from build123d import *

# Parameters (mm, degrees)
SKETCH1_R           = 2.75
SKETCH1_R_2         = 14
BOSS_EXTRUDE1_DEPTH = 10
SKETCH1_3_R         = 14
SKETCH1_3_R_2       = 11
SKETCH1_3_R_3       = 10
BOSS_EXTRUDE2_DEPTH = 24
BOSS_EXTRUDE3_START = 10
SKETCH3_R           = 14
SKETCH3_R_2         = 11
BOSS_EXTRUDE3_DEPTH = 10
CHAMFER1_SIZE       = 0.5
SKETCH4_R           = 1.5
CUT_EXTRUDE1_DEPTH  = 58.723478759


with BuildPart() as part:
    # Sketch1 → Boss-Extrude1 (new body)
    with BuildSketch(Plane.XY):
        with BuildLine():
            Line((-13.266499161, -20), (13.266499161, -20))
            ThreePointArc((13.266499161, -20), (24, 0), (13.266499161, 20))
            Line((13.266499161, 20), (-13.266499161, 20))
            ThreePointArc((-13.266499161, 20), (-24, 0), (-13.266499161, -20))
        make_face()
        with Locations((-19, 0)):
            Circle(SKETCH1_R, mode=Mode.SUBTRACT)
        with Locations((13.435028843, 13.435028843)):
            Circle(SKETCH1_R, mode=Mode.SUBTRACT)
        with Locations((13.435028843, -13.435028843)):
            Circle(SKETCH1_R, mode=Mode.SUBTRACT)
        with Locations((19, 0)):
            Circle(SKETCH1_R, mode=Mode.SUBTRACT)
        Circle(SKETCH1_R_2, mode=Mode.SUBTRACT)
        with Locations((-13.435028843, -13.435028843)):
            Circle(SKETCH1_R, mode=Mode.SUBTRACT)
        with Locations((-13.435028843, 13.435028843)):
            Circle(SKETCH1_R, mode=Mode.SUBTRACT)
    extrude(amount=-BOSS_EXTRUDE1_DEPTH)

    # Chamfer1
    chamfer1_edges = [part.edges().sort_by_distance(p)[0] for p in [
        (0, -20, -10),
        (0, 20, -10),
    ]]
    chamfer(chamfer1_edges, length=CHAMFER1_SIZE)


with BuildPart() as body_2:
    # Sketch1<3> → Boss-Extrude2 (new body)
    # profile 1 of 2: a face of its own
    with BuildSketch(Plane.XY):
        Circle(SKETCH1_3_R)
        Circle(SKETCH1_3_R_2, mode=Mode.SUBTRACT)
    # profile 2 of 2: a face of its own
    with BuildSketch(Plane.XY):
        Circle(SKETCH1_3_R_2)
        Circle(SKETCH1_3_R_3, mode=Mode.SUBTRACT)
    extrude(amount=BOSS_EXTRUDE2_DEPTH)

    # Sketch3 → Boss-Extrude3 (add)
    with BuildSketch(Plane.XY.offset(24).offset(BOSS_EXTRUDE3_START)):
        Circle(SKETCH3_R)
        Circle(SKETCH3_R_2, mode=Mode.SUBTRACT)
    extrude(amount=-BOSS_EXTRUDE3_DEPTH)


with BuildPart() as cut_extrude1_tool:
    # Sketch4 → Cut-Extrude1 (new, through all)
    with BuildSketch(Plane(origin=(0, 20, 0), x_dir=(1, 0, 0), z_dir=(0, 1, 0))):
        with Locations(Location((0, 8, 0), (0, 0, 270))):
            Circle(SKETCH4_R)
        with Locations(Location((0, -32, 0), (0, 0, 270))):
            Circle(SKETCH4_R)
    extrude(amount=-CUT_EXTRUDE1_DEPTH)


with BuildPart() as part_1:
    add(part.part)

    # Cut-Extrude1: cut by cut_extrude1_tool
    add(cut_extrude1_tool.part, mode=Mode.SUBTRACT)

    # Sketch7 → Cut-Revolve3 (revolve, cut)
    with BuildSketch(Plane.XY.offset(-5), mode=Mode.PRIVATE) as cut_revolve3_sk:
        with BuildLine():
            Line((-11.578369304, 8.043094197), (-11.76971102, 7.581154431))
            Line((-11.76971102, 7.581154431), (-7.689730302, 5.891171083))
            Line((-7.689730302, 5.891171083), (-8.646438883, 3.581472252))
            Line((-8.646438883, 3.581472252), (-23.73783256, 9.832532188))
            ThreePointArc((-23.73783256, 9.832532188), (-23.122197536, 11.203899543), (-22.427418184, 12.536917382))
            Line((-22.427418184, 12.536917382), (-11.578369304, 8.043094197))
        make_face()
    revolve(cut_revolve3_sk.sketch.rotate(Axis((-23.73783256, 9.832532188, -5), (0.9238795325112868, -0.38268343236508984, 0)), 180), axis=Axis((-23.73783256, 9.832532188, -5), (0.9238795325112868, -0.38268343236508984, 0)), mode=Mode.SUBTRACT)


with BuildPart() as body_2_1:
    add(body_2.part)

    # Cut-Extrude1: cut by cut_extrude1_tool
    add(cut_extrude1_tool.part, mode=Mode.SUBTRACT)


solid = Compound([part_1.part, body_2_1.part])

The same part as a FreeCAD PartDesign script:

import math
import FreeCAD as App
import Part
import Sketcher
Q = App.Units.Quantity


def edges_at(feature, points):
    """Names of the edges that pass closest to the given points."""
    edges = feature.Shape.Edges
    near = lambda p: min(range(len(edges)), key=lambda i: edges[i].distToShape(Part.Vertex(*p))[0])
    return sorted({f"Edge{near(p) + 1}" for p in points})

doc = App.newDocument("Part")
params = doc.addObject("Spreadsheet::Sheet", "Params")
for row, (alias, value) in enumerate([
    ("sketch1_diameter", "28 mm"),
    ("sketch1_radius", "24 mm"),
    ("sketch1_diameter2", "5.5 mm"),
    ("pad1_length", "10 mm"),
    ("chamfer_size", "0.5 mm"),
    ("sketch2_diameter", "28 mm"),
    ("sketch2_diameter2", "20 mm"),
    ("pad2_length", "24 mm"),
    ("sketch3_diameter", "28 mm"),
    ("sketch3_diameter2", "22 mm"),
    ("pad3_length", "10 mm"),
    ("sketch4_diameter", "3 mm"),
    ("pad4_length", "58.723479 mm"),
    ("sketch5_length", "0.5 mm"),
    ("sketch5_length2", "2.5 mm"),
    ("groove_angle", "360 deg"),
], start=1):
    params.set(f"A{row}", alias)
    params.set(f"B{row}", "=" + value)
    params.setAlias(f"B{row}", alias)

body = doc.addObject("PartDesign::Body", "Body")

sketch1 = body.newObject("Sketcher::SketchObject", "Sketch")
sketch1.AttachmentSupport = (doc.getObject("XY_Plane"), [""])
sketch1.MapMode = "FlatFace"
sketch1.addGeometry([
    Part.LineSegment(App.Vector(-13.3, -20, 0), App.Vector(13.3, -20, 0)),
    Part.ArcOfCircle(Part.Circle(App.Vector(0, 0, 0), App.Vector(0, 0, 1), 24), math.radians(-56), math.radians(56)),
    Part.LineSegment(App.Vector(13.3, 20, 0), App.Vector(-13.3, 20, 0)),
    Part.ArcOfCircle(Part.Circle(App.Vector(0, 0, 0), App.Vector(0, 0, 1), 24), math.radians(124), math.radians(236)),
    Part.Circle(App.Vector(-13.4, -13.4, 0), App.Vector(0, 0, 1), 2.8),
    Part.Circle(App.Vector(13.4, -13.4, 0), App.Vector(0, 0, 1), 2.8),
    Part.Circle(App.Vector(-19, 0, 0), App.Vector(0, 0, 1), 2.8),
    Part.Circle(App.Vector(-13.4, 13.4, 0), App.Vector(0, 0, 1), 2.8),
    Part.Circle(App.Vector(0, 0, 0), App.Vector(0, 0, 1), 14),
    Part.Circle(App.Vector(19, 0, 0), App.Vector(0, 0, 1), 2.8),
    Part.Circle(App.Vector(13.4, 13.4, 0), App.Vector(0, 0, 1), 2.8),
], False)
sketch1.addConstraint([
    Sketcher.Constraint("Coincident", 0, 2, 1, 1),
    Sketcher.Constraint("Coincident", 1, 2, 2, 1),
    Sketcher.Constraint("Coincident", 2, 2, 3, 1),
    Sketcher.Constraint("Coincident", 3, 2, 0, 1),
    Sketcher.Constraint("Horizontal", 0),
    Sketcher.Constraint("Horizontal", 2),
    Sketcher.Constraint("Coincident", 1, 3, -1, 1),
    Sketcher.Constraint("Coincident", 3, 3, -1, 1),
    Sketcher.Constraint("Coincident", 8, 3, -1, 1),
    Sketcher.Constraint("Equal", 1, 3),
    Sketcher.Constraint("Equal", 4, 5),
    Sketcher.Constraint("Equal", 5, 6),
    Sketcher.Constraint("Equal", 6, 7),
    Sketcher.Constraint("Equal", 7, 9),
    Sketcher.Constraint("Equal", 9, 10),
    Sketcher.Constraint("Symmetric", 5, 3, 7, 3, -1, 1),
    Sketcher.Constraint("Symmetric", 6, 3, 9, 3, -1, 1),
    Sketcher.Constraint("Symmetric", 4, 3, 10, 3, -1, 1),
    Sketcher.Constraint("Symmetric", 4, 3, 5, 3, -2),
    Sketcher.Constraint("PointOnObject", 6, 3, -1),
    Sketcher.Constraint("Vertical", 0, 2, 1, 2),
    Sketcher.Constraint("Diameter", 8, 28.0),
    Sketcher.Constraint("Radius", 1, 24.0),
    Sketcher.Constraint("Diameter", 4, 5.5),
    Sketcher.Constraint("DistanceX", 6, 3, -1, 1, 19.0),
    Sketcher.Constraint("DistanceY", 0, 2, -1, 1, 20.0),
    Sketcher.Constraint("DistanceX", 4, 3, -1, 1, 13.435029),
    Sketcher.Constraint("DistanceY", 4, 3, -1, 1, 13.435029),
])
sketch1.setExpression("Constraints[21]", "Params.sketch1_diameter")
sketch1.setExpression("Constraints[22]", "Params.sketch1_radius")
sketch1.setExpression("Constraints[23]", "Params.sketch1_diameter2")
pad1 = body.newObject("PartDesign::Pad", "Pad")
pad1.Profile = sketch1
pad1.setExpression("Length", "Params.pad1_length")
pad1.Reversed = True
doc.recompute()

chamfer = body.newObject("PartDesign::Chamfer", "Chamfer")
chamfer.Base = (pad1, edges_at(pad1, [(0, -20, -10), (0, 20, -10)]))
chamfer.setExpression("Size", "Params.chamfer_size")
body2 = doc.addObject("PartDesign::Body", "Body001")

sketch2 = body2.newObject("Sketcher::SketchObject", "Sketch001")
sketch2.AttachmentSupport = (doc.getObject("XY_Plane001"), [""])
sketch2.MapMode = "FlatFace"
sketch2.addGeometry([
    Part.Circle(App.Vector(0, 0, 0), App.Vector(0, 0, 1), 14),
    Part.Circle(App.Vector(0, 0, 0), App.Vector(0, 0, 1), 10),
], False)
sketch2.addConstraint([
    Sketcher.Constraint("Coincident", 0, 3, -1, 1),
    Sketcher.Constraint("Coincident", 1, 3, -1, 1),
    Sketcher.Constraint("Diameter", 0, 28.0),
    Sketcher.Constraint("Diameter", 1, 20.0),
])
sketch2.setExpression("Constraints[2]", "Params.sketch2_diameter")
sketch2.setExpression("Constraints[3]", "Params.sketch2_diameter2")
pad2 = body2.newObject("PartDesign::Pad", "Pad001")
pad2.Profile = sketch2
pad2.setExpression("Length", "Params.pad2_length")

sketch3 = body2.newObject("Sketcher::SketchObject", "Sketch002")
sketch3.AttachmentSupport = (doc.getObject("XY_Plane001"), [""])
sketch3.MapMode = "FlatFace"
sketch3.AttachmentOffset = App.Placement(App.Vector(0, 0, 34), App.Rotation())
sketch3.addGeometry([
    Part.Circle(App.Vector(0, 0, 0), App.Vector(0, 0, 1), 14),
    Part.Circle(App.Vector(0, 0, 0), App.Vector(0, 0, 1), 11),
], False)
sketch3.addConstraint([
    Sketcher.Constraint("Coincident", 0, 3, -1, 1),
    Sketcher.Constraint("Coincident", 1, 3, -1, 1),
    Sketcher.Constraint("Diameter", 0, 28.0),
    Sketcher.Constraint("Diameter", 1, 22.0),
])
sketch3.setExpression("Constraints[2]", "Params.sketch3_diameter")
sketch3.setExpression("Constraints[3]", "Params.sketch3_diameter2")
pad3 = body2.newObject("PartDesign::Pad", "Pad002")
pad3.Profile = sketch3
pad3.setExpression("Length", "Params.pad3_length")
pad3.Reversed = True
body3 = doc.addObject("PartDesign::Body", "Body002")
body3.AllowCompound = True

sketch4 = body3.newObject("Sketcher::SketchObject", "Sketch003")
sketch4.AttachmentSupport = (doc.getObject("XZ_Plane002"), [""])
sketch4.MapMode = "FlatFace"
sketch4.AttachmentOffset = App.Placement(App.Vector(0, 0, -20), App.Rotation())
sketch4.addGeometry([
    Part.Circle(App.Vector(0, -8, 0), App.Vector(0, 0, 1), 1.5),
    Part.Circle(App.Vector(0, 32, 0), App.Vector(0, 0, 1), 1.5),
], False)
sketch4.addConstraint([
    Sketcher.Constraint("Equal", 0, 1),
    Sketcher.Constraint("PointOnObject", 0, 3, -2),
    Sketcher.Constraint("PointOnObject", 1, 3, -2),
    Sketcher.Constraint("Diameter", 0, 3.0),
    Sketcher.Constraint("DistanceY", 0, 3, -1, 1, 8.0),
    Sketcher.Constraint("DistanceY", -1, 1, 1, 3, 32.0),
])
sketch4.setExpression("Constraints[3]", "Params.sketch4_diameter")
pad4 = body3.newObject("PartDesign::Pad", "Pad003")
pad4.Profile = sketch4
pad4.setExpression("Length", "Params.pad4_length")
doc.recompute()

body4 = doc.addObject("PartDesign::Body", "Body003")
body4.BaseFeature = body3
boolean = body.newObject("PartDesign::Boolean", "Boolean")
boolean.Type = "Cut"
boolean.addObjects([body4])
doc.recompute()

sketch5 = body.newObject("Sketcher::SketchObject", "Sketch004")
sketch5.AttachmentSupport = (doc.getObject("XY_Plane"), [""])
sketch5.MapMode = "FlatFace"
sketch5.AttachmentOffset = App.Placement(App.Vector(0, 0, -5), App.Rotation())
sketch5.addGeometry([
    Part.LineSegment(App.Vector(-11.77, 7.58, 0), App.Vector(-11.58, 8.04, 0)),
    Part.LineSegment(App.Vector(-11.58, 8.04, 0), App.Vector(-22.43, 12.54, 0)),
    Part.ArcOfCircle(Part.Circle(App.Vector(0, 0, 0), App.Vector(0, 0, 1), 25.69), math.radians(150.79), math.radians(157.5)),
    Part.LineSegment(App.Vector(-23.74, 9.83, 0), App.Vector(-8.65, 3.58, 0)),
    Part.LineSegment(App.Vector(-8.65, 3.58, 0), App.Vector(-7.69, 5.89, 0)),
    Part.LineSegment(App.Vector(-7.69, 5.89, 0), App.Vector(-11.77, 7.58, 0)),
], False)
sketch5.addGeometry(Part.LineSegment(App.Vector(-23.74, 9.83, 0), App.Vector(0, 0, 0)), True)
sketch5.addConstraint([
    Sketcher.Constraint("Coincident", 0, 2, 1, 1),
    Sketcher.Constraint("Coincident", 1, 2, 2, 1),
    Sketcher.Constraint("Coincident", 2, 2, 3, 1),
    Sketcher.Constraint("Coincident", 3, 2, 4, 1),
    Sketcher.Constraint("Coincident", 4, 2, 5, 1),
    Sketcher.Constraint("Coincident", 5, 2, 0, 1),
    Sketcher.Constraint("Coincident", 2, 3, -1, 1),
    Sketcher.Constraint("Coincident", 6, 2, -1, 1),
    Sketcher.Constraint("Coincident", 6, 1, 2, 2),
    Sketcher.Constraint("Perpendicular", 0, 1),
    Sketcher.Constraint("Parallel", 1, 3),
    Sketcher.Constraint("Perpendicular", 3, 4),
    Sketcher.Constraint("Perpendicular", 4, 5),
    Sketcher.Constraint("Parallel", 5, 6),
    Sketcher.Constraint("Angle", 0, Q("67.5 deg")),
    Sketcher.Constraint("Distance", 0, 0.5),
    Sketcher.Constraint("Distance", 4, 2.5),
    Sketcher.Constraint("Radius", 2, 25.693645),
    Sketcher.Constraint("Distance", 5, 4.416139),
    Sketcher.Constraint("DistanceX", 0, 2, -1, 1, 11.578369),
])
sketch5.setExpression("Constraints[15]", "Params.sketch5_length")
sketch5.setExpression("Constraints[16]", "Params.sketch5_length2")
groove = body.newObject("PartDesign::Groove", "Groove")
groove.Profile = sketch5
groove.ReferenceAxis = (sketch5, ["Axis0"])
groove.setExpression("Angle", "Params.groove_angle")
doc.recompute()

boolean2 = body2.newObject("PartDesign::Boolean", "Boolean001")
boolean2.Type = "Cut"
boolean2.addObjects([body3])

doc.recompute()
